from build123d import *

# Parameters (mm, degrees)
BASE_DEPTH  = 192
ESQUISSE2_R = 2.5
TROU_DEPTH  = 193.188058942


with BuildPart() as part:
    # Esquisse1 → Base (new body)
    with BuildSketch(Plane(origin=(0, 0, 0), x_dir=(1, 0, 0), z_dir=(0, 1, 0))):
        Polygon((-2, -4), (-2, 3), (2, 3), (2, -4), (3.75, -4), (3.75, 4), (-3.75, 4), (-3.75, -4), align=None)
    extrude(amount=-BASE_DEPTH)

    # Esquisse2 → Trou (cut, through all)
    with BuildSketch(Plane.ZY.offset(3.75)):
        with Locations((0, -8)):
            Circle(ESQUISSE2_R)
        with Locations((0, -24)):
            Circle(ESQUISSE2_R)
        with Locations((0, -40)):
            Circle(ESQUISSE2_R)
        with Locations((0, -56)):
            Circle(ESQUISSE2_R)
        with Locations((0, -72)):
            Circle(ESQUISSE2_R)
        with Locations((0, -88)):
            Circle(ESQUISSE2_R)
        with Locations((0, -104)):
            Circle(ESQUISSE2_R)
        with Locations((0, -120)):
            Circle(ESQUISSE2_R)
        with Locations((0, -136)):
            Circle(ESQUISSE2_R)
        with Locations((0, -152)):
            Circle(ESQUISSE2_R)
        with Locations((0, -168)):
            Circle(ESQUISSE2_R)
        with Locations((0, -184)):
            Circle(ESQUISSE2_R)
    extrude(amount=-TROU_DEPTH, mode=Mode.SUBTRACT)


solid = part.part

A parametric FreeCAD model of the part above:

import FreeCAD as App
import Part
import Sketcher
Q = App.Units.Quantity

doc = App.newDocument("Part")
params = doc.addObject("Spreadsheet::Sheet", "Params")
for row, (alias, value) in enumerate([
    ("sketch1_width", "4 mm"),
    ("sketch1_height", "7 mm"),
    ("sketch1_height2", "8 mm"),
    ("sketch1_width2", "7.5 mm"),
    ("pad1_length", "192 mm"),
    ("sketch2_diameter", "5 mm"),
], start=1):
    params.set(f"A{row}", alias)
    params.set(f"B{row}", "=" + value)
    params.setAlias(f"B{row}", alias)

body = doc.addObject("PartDesign::Body", "Body")

sketch1 = doc.addObject("Sketcher::SketchObject", "Sketch")
body.addObject(sketch1)
sketch1.AttachmentSupport = (doc.XZ_Plane, [""])
sketch1.MapMode = "FlatFace"
sketch1.addGeometry(Part.LineSegment(App.Vector(-2, 4, 0), App.Vector(-2, -3, 0)), False)
sketch1.addGeometry(Part.LineSegment(App.Vector(-2, -3, 0), App.Vector(2, -3, 0)), False)
sketch1.addGeometry(Part.LineSegment(App.Vector(2, -3, 0), App.Vector(2, 4, 0)), False)
sketch1.addGeometry(Part.LineSegment(App.Vector(2, 4, 0), App.Vector(3.8, 4, 0)), False)
sketch1.addGeometry(Part.LineSegment(App.Vector(3.8, 4, 0), App.Vector(3.8, -4, 0)), False)
sketch1.addGeometry(Part.LineSegment(App.Vector(3.8, -4, 0), App.Vector(-3.8, -4, 0)), False)
sketch1.addGeometry(Part.LineSegment(App.Vector(-3.8, -4, 0), App.Vector(-3.8, 4, 0)), False)
sketch1.addGeometry(Part.LineSegment(App.Vector(-3.8, 4, 0), App.Vector(-2, 4, 0)), False)
sketch1.addConstraint(Sketcher.Constraint("Coincident", 0, 2, 1, 1))
sketch1.addConstraint(Sketcher.Constraint("Coincident", 1, 2, 2, 1))
sketch1.addConstraint(Sketcher.Constraint("Coincident", 2, 2, 3, 1))
sketch1.addConstraint(Sketcher.Constraint("Coincident", 3, 2, 4, 1))
sketch1.addConstraint(Sketcher.Constraint("Coincident", 4, 2, 5, 1))
sketch1.addConstraint(Sketcher.Constraint("Coincident", 5, 2, 6, 1))
sketch1.addConstraint(Sketcher.Constraint("Coincident", 6, 2, 7, 1))
sketch1.addConstraint(Sketcher.Constraint("Coincident", 7, 2, 0, 1))
sketch1.addConstraint(Sketcher.Constraint("Vertical", 0))
sketch1.addConstraint(Sketcher.Constraint("Horizontal", 1))
sketch1.addConstraint(Sketcher.Constraint("Vertical", 2))
sketch1.addConstraint(Sketcher.Constraint("Horizontal", 3))
sketch1.addConstraint(Sketcher.Constraint("Vertical", 4))
sketch1.addConstraint(Sketcher.Constraint("Horizontal", 5))
sketch1.addConstraint(Sketcher.Constraint("Vertical", 6))
sketch1.addConstraint(Sketcher.Constraint("Horizontal", 7))
sketch1.addConstraint(Sketcher.Constraint("Symmetric", 3, 2, 5, 2, -1, 1))
sketch1.addConstraint(Sketcher.Constraint("Symmetric", 2, 2, 7, 2, -2))
sketch1.addConstraint(Sketcher.Constraint("DistanceX", 1, 1, 1, 2, Q("4 mm")))
sketch1.addConstraint(Sketcher.Constraint("DistanceY", 0, 2, 0, 1, Q("7 mm")))
sketch1.addConstraint(Sketcher.Constraint("DistanceY", 4, 2, 4, 1, Q("8 mm")))
sketch1.addConstraint(Sketcher.Constraint("DistanceX", 5, 2, 5, 1, Q("7.5 mm")))
sketch1.setExpression("Constraints[18]", "Params.sketch1_width")
sketch1.setExpression("Constraints[19]", "Params.sketch1_height")
sketch1.setExpression("Constraints[20]", "Params.sketch1_height2")
sketch1.setExpression("Constraints[21]", "Params.sketch1_width2")
pad1 = doc.addObject("PartDesign::Pad", "Pad")
body.addObject(pad1)
pad1.Profile = sketch1
pad1.setExpression("Length", "Params.pad1_length")

sketch2 = doc.addObject("Sketcher::SketchObject", "Sketch001")
body.addObject(sketch2)
sketch2.AttachmentSupport = (doc.YZ_Plane, [""])
sketch2.MapMode = "FlatFace"
sketch2.AttachmentOffset = App.Placement(App.Vector(0, 0, -3.75), App.Rotation())
sketch2.addGeometry(Part.Circle(App.Vector(-8, 0, 0), App.Vector(0, 0, 1), 2.5), False)
sketch2.addGeometry(Part.Circle(App.Vector(-24, 0, 0), App.Vector(0, 0, 1), 2.5), False)
sketch2.addGeometry(Part.Circle(App.Vector(-40, 0, 0), App.Vector(0, 0, 1), 2.5), False)
sketch2.addGeometry(Part.Circle(App.Vector(-56, 0, 0), App.Vector(0, 0, 1), 2.5), False)
sketch2.addGeometry(Part.Circle(App.Vector(-72, 0, 0), App.Vector(0, 0, 1), 2.5), False)
sketch2.addGeometry(Part.Circle(App.Vector(-88, 0, 0), App.Vector(0, 0, 1), 2.5), False)
sketch2.addGeometry(Part.Circle(App.Vector(-104, 0, 0), App.Vector(0, 0, 1), 2.5), False)
sketch2.addGeometry(Part.Circle(App.Vector(-120, 0, 0), App.Vector(0, 0, 1), 2.5), False)
sketch2.addGeometry(Part.Circle(App.Vector(-136, 0, 0), App.Vector(0, 0, 1), 2.5), False)
sketch2.addGeometry(Part.Circle(App.Vector(-152, 0, 0), App.Vector(0, 0, 1), 2.5), False)
sketch2.addGeometry(Part.Circle(App.Vector(-168, 0, 0), App.Vector(0, 0, 1), 2.5), False)
sketch2.addGeometry(Part.Circle(App.Vector(-184, 0, 0), App.Vector(0, 0, 1), 2.5), False)
sketch2.addConstraint(Sketcher.Constraint("Equal", 0, 1))
sketch2.addConstraint(Sketcher.Constraint("Equal", 1, 2))
sketch2.addConstraint(Sketcher.Constraint("Equal", 2, 3))
sketch2.addConstraint(Sketcher.Constraint("Equal", 3, 4))
sketch2.addConstraint(Sketcher.Constraint("Equal", 4, 5))
sketch2.addConstraint(Sketcher.Constraint("Equal", 5, 6))
sketch2.addConstraint(Sketcher.Constraint("Equal", 6, 7))
sketch2.addConstraint(Sketcher.Constraint("Equal", 7, 8))
sketch2.addConstraint(Sketcher.Constraint("Equal", 8, 9))
sketch2.addConstraint(Sketcher.Constraint("Equal", 9, 10))
sketch2.addConstraint(Sketcher.Constraint("Equal", 10, 11))
sketch2.addConstraint(Sketcher.Constraint("PointOnObject", 0, 3, -1))
sketch2.addConstraint(Sketcher.Constraint("PointOnObject", 1, 3, -1))
sketch2.addConstraint(Sketcher.Constraint("PointOnObject", 2, 3, -1))
sketch2.addConstraint(Sketcher.Constraint("PointOnObject", 3, 3, -1))
sketch2.addConstraint(Sketcher.Constraint("PointOnObject", 4, 3, -1))
sketch2.addConstraint(Sketcher.Constraint("PointOnObject", 5, 3, -1))
sketch2.addConstraint(Sketcher.Constraint("PointOnObject", 6, 3, -1))
sketch2.addConstraint(Sketcher.Constraint("PointOnObject", 7, 3, -1))
sketch2.addConstraint(Sketcher.Constraint("PointOnObject", 8, 3, -1))
sketch2.addConstraint(Sketcher.Constraint("PointOnObject", 9, 3, -1))
sketch2.addConstraint(Sketcher.Constraint("PointOnObject", 10, 3, -1))
sketch2.addConstraint(Sketcher.Constraint("PointOnObject", 11, 3, -1))
sketch2.addConstraint(Sketcher.Constraint("Diameter", 0, Q("5 mm")))
sketch2.addConstraint(Sketcher.Constraint("DistanceX", 0, 3, -1, 1, Q("8 mm")))
sketch2.addConstraint(Sketcher.Constraint("DistanceX", 1, 3, -1, 1, Q("24 mm")))
sketch2.addConstraint(Sketcher.Constraint("DistanceX", 2, 3, -1, 1, Q("40 mm")))
sketch2.addConstraint(Sketcher.Constraint("DistanceX", 3, 3, -1, 1, Q("56 mm")))
sketch2.addConstraint(Sketcher.Constraint("DistanceX", 4, 3, -1, 1, Q("72 mm")))
sketch2.addConstraint(Sketcher.Constraint("DistanceX", 5, 3, -1, 1, Q("88 mm")))
sketch2.addConstraint(Sketcher.Constraint("DistanceX", 6, 3, -1, 1, Q("104 mm")))
sketch2.addConstraint(Sketcher.Constraint("DistanceX", 7, 3, -1, 1, Q("120 mm")))
sketch2.addConstraint(Sketcher.Constraint("DistanceX", 8, 3, -1, 1, Q("136 mm")))
sketch2.addConstraint(Sketcher.Constraint("DistanceX", 9, 3, -1, 1, Q("152 mm")))
sketch2.addConstraint(Sketcher.Constraint("DistanceX", 10, 3, -1, 1, Q("168 mm")))
sketch2.addConstraint(Sketcher.Constraint("DistanceX", 11, 3, -1, 1, Q("184 mm")))
sketch2.setExpression("Constraints[23]", "Params.sketch2_diameter")
pocket1 = doc.addObject("PartDesign::Pocket", "Pocket")
body.addObject(pocket1)
pocket1.Profile = sketch2
pocket1.Type = "ThroughAll"
pocket1.Reversed = True

doc.recompute()
